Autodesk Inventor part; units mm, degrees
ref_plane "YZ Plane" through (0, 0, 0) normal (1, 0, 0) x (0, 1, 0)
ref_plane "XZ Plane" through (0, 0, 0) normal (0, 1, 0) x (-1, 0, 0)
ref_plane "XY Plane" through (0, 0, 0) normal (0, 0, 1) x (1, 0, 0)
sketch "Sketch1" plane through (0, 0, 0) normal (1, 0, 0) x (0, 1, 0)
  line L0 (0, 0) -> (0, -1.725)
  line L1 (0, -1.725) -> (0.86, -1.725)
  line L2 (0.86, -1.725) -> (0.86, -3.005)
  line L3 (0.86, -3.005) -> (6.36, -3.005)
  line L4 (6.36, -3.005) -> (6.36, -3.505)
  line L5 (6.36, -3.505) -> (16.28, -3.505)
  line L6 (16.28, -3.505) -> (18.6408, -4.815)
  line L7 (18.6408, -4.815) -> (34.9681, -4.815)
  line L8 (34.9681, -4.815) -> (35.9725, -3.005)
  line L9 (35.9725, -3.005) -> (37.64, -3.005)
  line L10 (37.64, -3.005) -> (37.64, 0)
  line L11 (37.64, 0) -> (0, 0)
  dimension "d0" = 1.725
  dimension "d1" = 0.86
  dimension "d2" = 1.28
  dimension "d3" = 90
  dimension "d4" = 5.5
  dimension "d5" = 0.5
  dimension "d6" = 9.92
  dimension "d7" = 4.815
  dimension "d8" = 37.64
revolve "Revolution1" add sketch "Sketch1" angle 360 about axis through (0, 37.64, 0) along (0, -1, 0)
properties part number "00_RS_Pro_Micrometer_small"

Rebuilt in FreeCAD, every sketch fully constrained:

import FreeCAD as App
import Part
import Sketcher
from FreeCAD import Vector
Q = App.Units.Quantity


def add_polygon(sketch, points):
    """Adds a closed chain of lines whose ends are joined by coincident constraints."""
    first, n = sketch.GeometryCount, len(points)
    for a, b in zip(points, points[1:] + points[:1]):
        sketch.addGeometry(Part.LineSegment(App.Vector(*a, 0), App.Vector(*b, 0)), False)
    for i in range(n):
        sketch.addConstraint(Sketcher.Constraint("Coincident", first + i, 2, first + (i + 1) % n, 1))

doc = App.newDocument("Part")
params = doc.addObject("Spreadsheet::Sheet", "Params")
for row, (alias, value) in enumerate([
    ("sketch1_width", "5.5 mm"),
    ("sketch1_height", "0.5 mm"),
    ("sketch1_width2", "37.64 mm"),
    ("sketch1_width3", "0.86 mm"),
    ("sketch1_width4", "9.92 mm"),
    ("revolution_angle", "360 deg"),
], start=1):
    params.set(f"A{row}", alias)
    params.set(f"B{row}", "=" + value)
    params.setAlias(f"B{row}", alias)

body = doc.addObject("PartDesign::Body", "Body")

sketch1 = body.newObject("Sketcher::SketchObject", "Sketch")
sketch1.AttachmentSupport = (doc.getObject("YZ_Plane"), [""])
sketch1.MapMode = "FlatFace"
add_polygon(sketch1, [(37.6, 0), (0, 0), (0, -1.7), (0.9, -1.7), (0.9, -3), (6.4, -3), (6.4, -3.5), (16.3, -3.5), (18.6, -4.8), (35, -4.8), (36, -3), (37.6, -3)])
sketch1.addConstraint(Sketcher.Constraint("Horizontal", 0))
sketch1.addConstraint(Sketcher.Constraint("Vertical", 1))
sketch1.addConstraint(Sketcher.Constraint("Horizontal", 2))
sketch1.addConstraint(Sketcher.Constraint("Vertical", 3))
sketch1.addConstraint(Sketcher.Constraint("Horizontal", 4))
sketch1.addConstraint(Sketcher.Constraint("Vertical", 5))
sketch1.addConstraint(Sketcher.Constraint("Horizontal", 6))
sketch1.addConstraint(Sketcher.Constraint("Horizontal", 8))
sketch1.addConstraint(Sketcher.Constraint("Horizontal", 10))
sketch1.addConstraint(Sketcher.Constraint("Vertical", 11))
sketch1.addConstraint(Sketcher.Constraint("Coincident", 0, 2, -1, 1))
sketch1.addConstraint(Sketcher.Constraint("Perpendicular", 7, 9))
sketch1.addConstraint(Sketcher.Constraint("Horizontal", 4, 2, 9, 2))
sketch1.addConstraint(Sketcher.Constraint("DistanceX", 4, 1, 4, 2, Q("5.5 mm")))
sketch1.addConstraint(Sketcher.Constraint("DistanceY", 5, 2, 5, 1, Q("0.5 mm")))
sketch1.addConstraint(Sketcher.Constraint("DistanceX", 0, 2, 0, 1, Q("37.64 mm")))
sketch1.addConstraint(Sketcher.Constraint("DistanceX", 2, 1, 2, 2, Q("0.86 mm")))
sketch1.addConstraint(Sketcher.Constraint("DistanceX", 6, 1, 6, 2, Q("9.92 mm")))
sketch1.addConstraint(Sketcher.Constraint("DistanceY", 3, 2, 3, 1, Q("1.28 mm")))
sketch1.addConstraint(Sketcher.Constraint("DistanceY", 1, 2, 1, 1, Q("1.725 mm")))
sketch1.addConstraint(Sketcher.Constraint("DistanceY", 7, 2, -1, 1, Q("4.815 mm")))
sketch1.addConstraint(Sketcher.Constraint("Distance", 7, Q("2.7 mm")))
sketch1.addConstraint(Sketcher.Constraint("DistanceX", 8, 1, 8, 2, Q("16.3273 mm")))
sketch1.setExpression("Constraints[25]", "Params.sketch1_width")
sketch1.setExpression("Constraints[26]", "Params.sketch1_height")
sketch1.setExpression("Constraints[27]", "Params.sketch1_width2")
sketch1.setExpression("Constraints[28]", "Params.sketch1_width3")
sketch1.setExpression("Constraints[29]", "Params.sketch1_width4")
revolution = body.newObject("PartDesign::Revolution", "Revolution")
revolution.Profile = sketch1
revolution.ReferenceAxis = (sketch1, ["H_Axis"])
revolution.setExpression("Angle", "Params.revolution_angle")

doc.recompute()
